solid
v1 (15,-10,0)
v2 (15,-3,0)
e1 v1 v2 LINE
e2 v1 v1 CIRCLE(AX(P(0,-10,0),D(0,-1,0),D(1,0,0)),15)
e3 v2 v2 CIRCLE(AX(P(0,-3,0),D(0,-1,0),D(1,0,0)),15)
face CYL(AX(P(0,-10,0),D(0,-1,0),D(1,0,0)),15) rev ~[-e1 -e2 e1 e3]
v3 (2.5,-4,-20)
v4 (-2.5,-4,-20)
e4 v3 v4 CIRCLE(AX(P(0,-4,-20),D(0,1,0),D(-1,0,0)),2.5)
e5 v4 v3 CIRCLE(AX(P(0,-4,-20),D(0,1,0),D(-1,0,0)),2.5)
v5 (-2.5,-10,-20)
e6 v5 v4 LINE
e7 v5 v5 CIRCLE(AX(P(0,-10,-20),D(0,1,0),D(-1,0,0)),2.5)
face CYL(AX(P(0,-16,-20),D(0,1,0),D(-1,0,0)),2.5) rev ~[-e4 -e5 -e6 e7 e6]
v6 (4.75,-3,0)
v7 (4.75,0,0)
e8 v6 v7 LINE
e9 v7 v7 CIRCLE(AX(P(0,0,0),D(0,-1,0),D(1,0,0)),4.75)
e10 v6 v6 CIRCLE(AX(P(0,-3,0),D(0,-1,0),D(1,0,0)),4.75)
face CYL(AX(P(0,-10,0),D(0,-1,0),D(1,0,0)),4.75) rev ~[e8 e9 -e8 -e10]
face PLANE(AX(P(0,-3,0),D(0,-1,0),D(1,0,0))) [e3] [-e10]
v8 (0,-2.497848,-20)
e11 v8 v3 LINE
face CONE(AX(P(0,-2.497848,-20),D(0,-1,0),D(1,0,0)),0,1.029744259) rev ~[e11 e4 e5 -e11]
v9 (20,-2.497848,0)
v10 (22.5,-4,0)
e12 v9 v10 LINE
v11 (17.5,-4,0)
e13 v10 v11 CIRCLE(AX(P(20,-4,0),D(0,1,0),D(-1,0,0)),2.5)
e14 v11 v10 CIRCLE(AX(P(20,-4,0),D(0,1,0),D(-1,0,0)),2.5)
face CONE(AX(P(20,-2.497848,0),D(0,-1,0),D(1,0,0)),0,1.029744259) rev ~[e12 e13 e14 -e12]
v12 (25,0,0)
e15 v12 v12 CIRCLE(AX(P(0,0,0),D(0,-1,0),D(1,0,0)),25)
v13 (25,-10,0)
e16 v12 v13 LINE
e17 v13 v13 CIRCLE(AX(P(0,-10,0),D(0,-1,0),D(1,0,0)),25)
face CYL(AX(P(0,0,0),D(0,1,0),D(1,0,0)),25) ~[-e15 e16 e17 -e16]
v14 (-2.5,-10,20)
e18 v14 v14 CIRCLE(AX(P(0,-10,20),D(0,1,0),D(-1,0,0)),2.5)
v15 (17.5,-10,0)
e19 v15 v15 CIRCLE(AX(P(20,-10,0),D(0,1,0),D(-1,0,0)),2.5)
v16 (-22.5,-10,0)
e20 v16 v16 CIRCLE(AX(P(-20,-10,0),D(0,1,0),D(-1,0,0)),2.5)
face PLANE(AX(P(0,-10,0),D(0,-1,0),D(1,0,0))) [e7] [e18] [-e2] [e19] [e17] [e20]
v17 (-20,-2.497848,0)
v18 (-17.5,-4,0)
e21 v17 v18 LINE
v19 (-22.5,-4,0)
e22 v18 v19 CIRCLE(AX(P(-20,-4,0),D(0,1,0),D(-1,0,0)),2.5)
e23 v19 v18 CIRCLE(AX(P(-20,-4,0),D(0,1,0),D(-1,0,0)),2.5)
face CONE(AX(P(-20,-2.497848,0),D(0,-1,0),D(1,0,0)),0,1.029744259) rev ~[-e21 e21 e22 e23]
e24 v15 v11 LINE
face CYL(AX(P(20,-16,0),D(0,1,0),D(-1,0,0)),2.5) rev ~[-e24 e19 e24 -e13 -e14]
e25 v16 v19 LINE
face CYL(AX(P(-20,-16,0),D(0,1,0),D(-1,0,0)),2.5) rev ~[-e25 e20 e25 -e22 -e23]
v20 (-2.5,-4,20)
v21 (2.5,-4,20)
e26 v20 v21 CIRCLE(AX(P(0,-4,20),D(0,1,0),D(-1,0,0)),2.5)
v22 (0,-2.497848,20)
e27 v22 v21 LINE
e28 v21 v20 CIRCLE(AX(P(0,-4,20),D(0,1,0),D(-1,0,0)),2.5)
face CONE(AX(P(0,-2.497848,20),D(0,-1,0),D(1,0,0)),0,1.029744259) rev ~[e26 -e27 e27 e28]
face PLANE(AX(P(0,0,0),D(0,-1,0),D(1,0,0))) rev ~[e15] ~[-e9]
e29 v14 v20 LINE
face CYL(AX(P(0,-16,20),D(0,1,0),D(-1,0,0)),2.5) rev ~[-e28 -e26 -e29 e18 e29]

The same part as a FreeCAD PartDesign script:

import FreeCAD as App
import Part
import Sketcher
from FreeCAD import Vector

doc = App.newDocument("Part")
params = doc.addObject("Spreadsheet::Sheet", "Params")
for row, (alias, value) in enumerate([
    ("sketch1_diameter", "50 mm"),
    ("pad1_length", "10 mm"),
    ("sketch2_diameter", "9.5 mm"),
    ("pocket1_length", "25 mm"),
    ("sketch3_diameter", "30 mm"),
    ("pocket2_length", "7 mm"),
    ("sketch4_diameter", "5 mm"),
    ("hole_diameter", "5 mm"),
    ("hole_depth", "6 mm"),
], start=1):
    params.set(f"A{row}", alias)
    params.set(f"B{row}", "=" + value)
    params.setAlias(f"B{row}", alias)

body = doc.addObject("PartDesign::Body", "Body")

sketch1 = body.newObject("Sketcher::SketchObject", "Sketch")
sketch1.AttachmentSupport = (doc.getObject("XZ_Plane"), [""])
sketch1.MapMode = "FlatFace"
sketch1.addGeometry(Part.Circle(Vector(0, 0, 0), Vector(0, 0, 1), 25), False)
sketch1.addConstraint([
    Sketcher.Constraint("Coincident", 0, 3, -1, 1),
    Sketcher.Constraint("Diameter", 0, 50.0),
])
sketch1.setExpression("Constraints[1]", "Params.sketch1_diameter")
pad1 = body.newObject("PartDesign::Pad", "Pad")
pad1.Profile = sketch1
pad1.setExpression("Length", "Params.pad1_length")

sketch2 = body.newObject("Sketcher::SketchObject", "Sketch001")
sketch2.AttachmentSupport = (doc.getObject("XZ_Plane"), [""])
sketch2.MapMode = "FlatFace"
sketch2.AttachmentOffset = App.Placement(Vector(0, 0, 10), App.Rotation())
sketch2.addGeometry(Part.Circle(Vector(0, 0, 0), Vector(0, 0, 1), 4.8), False)
sketch2.addConstraint([
    Sketcher.Constraint("Coincident", 0, 3, -1, 1),
    Sketcher.Constraint("Diameter", 0, 9.5),
])
sketch2.setExpression("Constraints[1]", "Params.sketch2_diameter")
pocket1 = body.newObject("PartDesign::Pocket", "Pocket")
pocket1.Profile = sketch2
pocket1.setExpression("Length", "Params.pocket1_length")

sketch3 = body.newObject("Sketcher::SketchObject", "Sketch002")
sketch3.AttachmentSupport = (doc.getObject("XZ_Plane"), [""])
sketch3.MapMode = "FlatFace"
sketch3.AttachmentOffset = App.Placement(Vector(0, 0, 10), App.Rotation())
sketch3.addGeometry(Part.Circle(Vector(0, 0, 0), Vector(0, 0, 1), 15), False)
sketch3.addConstraint([
    Sketcher.Constraint("Coincident", 0, 3, -1, 1),
    Sketcher.Constraint("Diameter", 0, 30.0),
])
sketch3.setExpression("Constraints[1]", "Params.sketch3_diameter")
pocket2 = body.newObject("PartDesign::Pocket", "Pocket001")
pocket2.Profile = sketch3
pocket2.setExpression("Length", "Params.pocket2_length")

sketch4 = body.newObject("Sketcher::SketchObject", "Sketch003")
sketch4.AttachmentSupport = (doc.getObject("XZ_Plane"), [""])
sketch4.MapMode = "FlatFace"
sketch4.AttachmentOffset = App.Placement(Vector(0, 0, 10), App.Rotation())
sketch4.addGeometry([
    Part.Circle(Vector(0, 20, 0), Vector(0, 0, 1), 2.5),
    Part.Circle(Vector(20, 0, 0), Vector(0, 0, 1), 2.5),
    Part.Circle(Vector(0, -20, 0), Vector(0, 0, 1), 2.5),
    Part.Circle(Vector(-20, 0, 0), Vector(0, 0, 1), 2.5),
], False)
sketch4.addConstraint([
    Sketcher.Constraint("Equal", 0, 1),
    Sketcher.Constraint("Equal", 1, 2),
    Sketcher.Constraint("Equal", 2, 3),
    Sketcher.Constraint("Symmetric", 0, 3, 2, 3, -1, 1),
    Sketcher.Constraint("Symmetric", 1, 3, 3, 3, -1, 1),
    Sketcher.Constraint("PointOnObject", 0, 3, -2),
    Sketcher.Constraint("PointOnObject", 1, 3, -1),
    Sketcher.Constraint("Diameter", 0, 5.0),
    Sketcher.Constraint("DistanceY", -1, 1, 0, 3, 20.0),
    Sketcher.Constraint("DistanceX", -1, 1, 1, 3, 20.0),
])
sketch4.setExpression("Constraints[7]", "Params.sketch4_diameter")
doc.recompute()
hole = body.newObject("PartDesign::Hole", "Hole")
hole.Profile = sketch4
hole.ThreadType = "None"
hole.setExpression("Diameter", "Params.hole_diameter")
hole.DepthType = "Dimension"
hole.setExpression("Depth", "Params.hole_depth")
hole.DrillPoint = "Angled"
hole.DrillPointAngle = 118

doc.recompute()
